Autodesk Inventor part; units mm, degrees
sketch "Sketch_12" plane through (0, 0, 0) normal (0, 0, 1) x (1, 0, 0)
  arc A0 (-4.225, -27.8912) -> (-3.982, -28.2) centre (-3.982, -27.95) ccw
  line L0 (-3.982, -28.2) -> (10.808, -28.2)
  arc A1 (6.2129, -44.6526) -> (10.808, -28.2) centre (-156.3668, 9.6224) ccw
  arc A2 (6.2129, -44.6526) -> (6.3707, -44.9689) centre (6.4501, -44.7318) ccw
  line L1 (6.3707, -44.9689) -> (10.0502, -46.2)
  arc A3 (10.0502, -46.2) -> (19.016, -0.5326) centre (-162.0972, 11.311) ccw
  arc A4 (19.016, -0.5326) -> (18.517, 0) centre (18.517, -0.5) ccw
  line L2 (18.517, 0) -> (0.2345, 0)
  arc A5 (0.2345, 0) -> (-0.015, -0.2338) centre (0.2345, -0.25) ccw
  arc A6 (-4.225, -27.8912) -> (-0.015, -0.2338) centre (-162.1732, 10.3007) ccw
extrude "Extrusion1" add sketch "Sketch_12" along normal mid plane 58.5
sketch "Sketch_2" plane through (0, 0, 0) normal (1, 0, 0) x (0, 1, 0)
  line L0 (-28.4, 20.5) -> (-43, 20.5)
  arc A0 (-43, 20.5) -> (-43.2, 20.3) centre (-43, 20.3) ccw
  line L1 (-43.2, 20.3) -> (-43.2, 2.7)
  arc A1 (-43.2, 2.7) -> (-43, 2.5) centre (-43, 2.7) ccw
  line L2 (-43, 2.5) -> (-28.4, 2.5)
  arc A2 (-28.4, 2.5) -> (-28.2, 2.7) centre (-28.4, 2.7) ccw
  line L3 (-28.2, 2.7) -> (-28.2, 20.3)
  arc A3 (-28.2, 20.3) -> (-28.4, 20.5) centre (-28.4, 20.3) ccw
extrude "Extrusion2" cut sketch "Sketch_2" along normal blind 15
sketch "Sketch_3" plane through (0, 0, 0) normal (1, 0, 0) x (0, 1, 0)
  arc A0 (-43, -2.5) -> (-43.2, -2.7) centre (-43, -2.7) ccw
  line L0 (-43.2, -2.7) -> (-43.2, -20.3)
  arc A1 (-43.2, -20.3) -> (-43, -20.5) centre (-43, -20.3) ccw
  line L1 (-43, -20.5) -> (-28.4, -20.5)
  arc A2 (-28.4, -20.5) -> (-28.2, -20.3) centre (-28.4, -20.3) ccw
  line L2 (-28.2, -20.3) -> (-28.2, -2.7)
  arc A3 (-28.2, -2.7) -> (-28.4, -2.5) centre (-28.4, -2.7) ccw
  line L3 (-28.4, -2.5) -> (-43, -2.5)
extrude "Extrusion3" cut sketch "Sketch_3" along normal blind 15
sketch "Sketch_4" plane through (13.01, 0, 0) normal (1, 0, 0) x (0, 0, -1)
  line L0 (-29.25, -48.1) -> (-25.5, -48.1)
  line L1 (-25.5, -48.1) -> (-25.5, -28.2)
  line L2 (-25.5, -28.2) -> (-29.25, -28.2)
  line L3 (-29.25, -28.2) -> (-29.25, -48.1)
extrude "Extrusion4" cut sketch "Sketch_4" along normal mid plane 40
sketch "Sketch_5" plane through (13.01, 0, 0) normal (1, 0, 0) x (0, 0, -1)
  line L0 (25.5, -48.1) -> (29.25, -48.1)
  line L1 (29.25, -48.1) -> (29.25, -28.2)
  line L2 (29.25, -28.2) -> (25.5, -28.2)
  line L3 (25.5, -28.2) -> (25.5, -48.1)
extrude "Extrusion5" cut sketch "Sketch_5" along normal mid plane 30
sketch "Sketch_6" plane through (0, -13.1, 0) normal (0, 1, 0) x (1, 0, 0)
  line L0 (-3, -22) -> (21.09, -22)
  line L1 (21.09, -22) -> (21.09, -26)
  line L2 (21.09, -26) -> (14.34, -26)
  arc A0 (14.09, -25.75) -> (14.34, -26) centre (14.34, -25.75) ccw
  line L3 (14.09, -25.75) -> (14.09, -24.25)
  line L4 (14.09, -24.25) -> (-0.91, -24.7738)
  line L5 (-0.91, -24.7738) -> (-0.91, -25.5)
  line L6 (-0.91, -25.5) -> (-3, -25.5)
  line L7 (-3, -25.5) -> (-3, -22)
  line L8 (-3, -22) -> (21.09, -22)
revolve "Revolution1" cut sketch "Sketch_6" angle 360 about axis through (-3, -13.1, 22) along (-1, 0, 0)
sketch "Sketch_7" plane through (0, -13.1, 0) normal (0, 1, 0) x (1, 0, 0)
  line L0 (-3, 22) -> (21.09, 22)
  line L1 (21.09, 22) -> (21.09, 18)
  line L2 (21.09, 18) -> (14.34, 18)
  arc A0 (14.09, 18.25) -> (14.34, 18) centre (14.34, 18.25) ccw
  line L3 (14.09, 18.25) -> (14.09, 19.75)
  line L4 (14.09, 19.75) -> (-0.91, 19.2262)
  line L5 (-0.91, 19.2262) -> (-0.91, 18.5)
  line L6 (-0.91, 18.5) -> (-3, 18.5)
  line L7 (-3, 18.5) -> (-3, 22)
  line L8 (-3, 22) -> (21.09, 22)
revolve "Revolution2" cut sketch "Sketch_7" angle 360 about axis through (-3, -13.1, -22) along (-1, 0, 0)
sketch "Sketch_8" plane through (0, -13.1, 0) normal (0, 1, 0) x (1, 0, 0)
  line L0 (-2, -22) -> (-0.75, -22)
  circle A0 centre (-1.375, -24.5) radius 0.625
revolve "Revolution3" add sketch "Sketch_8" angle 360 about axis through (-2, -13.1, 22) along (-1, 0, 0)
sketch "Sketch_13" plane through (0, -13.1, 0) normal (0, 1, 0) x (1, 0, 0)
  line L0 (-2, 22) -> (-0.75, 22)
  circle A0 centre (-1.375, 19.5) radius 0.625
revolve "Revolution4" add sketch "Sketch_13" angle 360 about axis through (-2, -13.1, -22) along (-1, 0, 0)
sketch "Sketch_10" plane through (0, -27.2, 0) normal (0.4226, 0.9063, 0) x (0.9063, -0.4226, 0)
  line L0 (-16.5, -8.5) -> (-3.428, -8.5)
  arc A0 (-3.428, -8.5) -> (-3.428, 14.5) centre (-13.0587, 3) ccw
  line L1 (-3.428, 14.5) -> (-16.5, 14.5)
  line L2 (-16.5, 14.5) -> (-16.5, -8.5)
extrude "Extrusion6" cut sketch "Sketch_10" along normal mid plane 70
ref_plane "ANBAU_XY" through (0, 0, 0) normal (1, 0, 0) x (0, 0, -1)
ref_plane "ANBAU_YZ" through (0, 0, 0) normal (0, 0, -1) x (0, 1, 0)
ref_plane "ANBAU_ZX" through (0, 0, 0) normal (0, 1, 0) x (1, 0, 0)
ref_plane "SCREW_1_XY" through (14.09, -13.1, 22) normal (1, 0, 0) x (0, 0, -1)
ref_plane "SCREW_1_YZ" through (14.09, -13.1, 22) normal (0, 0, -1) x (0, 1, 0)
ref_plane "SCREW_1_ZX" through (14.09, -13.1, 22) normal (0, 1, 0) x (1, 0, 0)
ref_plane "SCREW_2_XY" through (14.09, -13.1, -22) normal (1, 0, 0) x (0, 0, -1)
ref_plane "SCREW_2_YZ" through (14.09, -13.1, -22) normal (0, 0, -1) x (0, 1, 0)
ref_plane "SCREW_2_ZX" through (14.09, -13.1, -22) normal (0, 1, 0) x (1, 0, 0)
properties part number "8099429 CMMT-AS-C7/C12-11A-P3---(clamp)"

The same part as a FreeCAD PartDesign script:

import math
import FreeCAD as App
import Part
import Sketcher
Q = App.Units.Quantity


def add_polygon(sketch, points):
    """Adds a closed chain of lines whose ends are joined by coincident constraints."""
    first, n = sketch.GeometryCount, len(points)
    for a, b in zip(points, points[1:] + points[:1]):
        sketch.addGeometry(Part.LineSegment(App.Vector(*a, 0), App.Vector(*b, 0)), False)
    for i in range(n):
        sketch.addConstraint(Sketcher.Constraint("Coincident", first + i, 2, first + (i + 1) % n, 1))

doc = App.newDocument("Part")
body = doc.addObject("PartDesign::Body", "Body")

# Sketch on XY plane
sketch1 = doc.addObject("Sketcher::SketchObject", "Sketch")
body.addObject(sketch1)
sketch1.AttachmentSupport = (doc.XY_Plane, [""])
sketch1.MapMode = "FlatFace"
sketch1.addGeometry(Part.ArcOfCircle(Part.Circle(App.Vector(-162.17, 10.3, 0), App.Vector(0, 0, 1), 162.5), math.radians(-13.59), math.radians(-3.72)), False)
sketch1.addGeometry(Part.ArcOfCircle(Part.Circle(App.Vector(-3.98, -27.95, 0), App.Vector(0, 0, 1), 0.25), math.radians(166), math.radians(270)), False)
sketch1.addGeometry(Part.LineSegment(App.Vector(-3.98, -28.2, 0), App.Vector(10.81, -28.2, 0)), False)
sketch1.addGeometry(Part.ArcOfCircle(Part.Circle(App.Vector(-156.38, 9.63, 0), App.Vector(0, 0, 1), 171.42), math.radians(-18.46), math.radians(-12.75)), False)
sketch1.addGeometry(Part.ArcOfCircle(Part.Circle(App.Vector(6.45, -44.73, 0), App.Vector(0, 0, 1), 0.25), math.radians(162), math.radians(251)), False)
sketch1.addGeometry(Part.LineSegment(App.Vector(6.37, -44.97, 0), App.Vector(10.05, -46.2, 0)), False)
sketch1.addGeometry(Part.ArcOfCircle(Part.Circle(App.Vector(-162.1, 11.31, 0), App.Vector(0, 0, 1), 181.5), math.radians(-18.47), math.radians(-3.74)), False)
sketch1.addGeometry(Part.ArcOfCircle(Part.Circle(App.Vector(18.52, -0.5, 0), App.Vector(0, 0, 1), 0.5), math.radians(-4), math.radians(90)), False)
sketch1.addGeometry(Part.LineSegment(App.Vector(18.52, 0, 0), App.Vector(0.23, 0, 0)), False)
sketch1.addGeometry(Part.ArcOfCircle(Part.Circle(App.Vector(0.23, -0.25, 0), App.Vector(0, 0, 1), 0.25), math.radians(90), math.radians(176)), False)
sketch1.addConstraint(Sketcher.Constraint("Tangent", 0, 1, 1, 1))
sketch1.addConstraint(Sketcher.Constraint("Tangent", 1, 2, 2, 1))
sketch1.addConstraint(Sketcher.Constraint("Coincident", 2, 2, 3, 2))
sketch1.addConstraint(Sketcher.Constraint("Tangent", 3, 1, 4, 1))
sketch1.addConstraint(Sketcher.Constraint("Tangent", 4, 2, 5, 1))
sketch1.addConstraint(Sketcher.Constraint("Coincident", 5, 2, 6, 1))
sketch1.addConstraint(Sketcher.Constraint("Tangent", 6, 2, 7, 1))
sketch1.addConstraint(Sketcher.Constraint("Tangent", 7, 2, 8, 1))
sketch1.addConstraint(Sketcher.Constraint("Tangent", 8, 2, 9, 1))
sketch1.addConstraint(Sketcher.Constraint("Tangent", 9, 2, 0, 2))
sketch1.addConstraint(Sketcher.Constraint("Horizontal", 2))
sketch1.addConstraint(Sketcher.Constraint("Horizontal", 8))
sketch1.addConstraint(Sketcher.Constraint("Equal", 1, 4))
sketch1.addConstraint(Sketcher.Constraint("Equal", 4, 9))
sketch1.addConstraint(Sketcher.Constraint("PointOnObject", 7, 2, -1))
sketch1.addConstraint(Sketcher.Constraint("Radius", 0, 162.5))
sketch1.addConstraint(Sketcher.Constraint("Radius", 7, 0.5))
sketch1.addConstraint(Sketcher.Constraint("Radius", 1, 0.25))
sketch1.addConstraint(Sketcher.Constraint("Angle", 5, Q("-18.4994 deg")))
sketch1.addConstraint(Sketcher.Constraint("DistanceY", 5, 2, 2, 2, 18.0))
sketch1.addConstraint(Sketcher.Constraint("DistanceX", 2, 1, 2, 2, 14.79))
sketch1.addConstraint(Sketcher.Constraint("DistanceY", 1, 2, -1, 1, 28.2))
sketch1.addConstraint(Sketcher.Constraint("Radius", 3, 171.4154))
sketch1.addConstraint(Sketcher.Constraint("Radius", 6, 181.5033))
sketch1.addConstraint(Sketcher.Constraint("DistanceX", 4, 3, 5, 2, 3.6))
sketch1.addConstraint(Sketcher.Constraint("DistanceX", -1, 1, 4, 3, 6.45))
sketch1.addConstraint(Sketcher.Constraint("DistanceX", 8, 2, 8, 1, 18.2825))
sketch1.addConstraint(Sketcher.Constraint("DistanceX", 1, 3, -1, 1, 3.982))
sketch1.addConstraint(Sketcher.Constraint("DistanceX", -1, 1, 7, 3, 18.517))
pad1 = doc.addObject("PartDesign::Pad", "Pad")
body.addObject(pad1)
pad1.Profile = sketch1
pad1.Length = 58.5
pad1.Midplane = True

# Sketch on YZ plane
sketch2 = doc.addObject("Sketcher::SketchObject", "Sketch001")
body.addObject(sketch2)
sketch2.AttachmentSupport = (doc.YZ_Plane, [""])
sketch2.MapMode = "FlatFace"
sketch2.addGeometry(Part.ArcOfCircle(Part.Circle(App.Vector(-28.4, 20.3, 0), App.Vector(0, 0, 1), 0.2), math.radians(0), math.radians(90)), False)
sketch2.addGeometry(Part.LineSegment(App.Vector(-28.4, 20.5, 0), App.Vector(-43, 20.5, 0)), False)
sketch2.addGeometry(Part.ArcOfCircle(Part.Circle(App.Vector(-43, 20.3, 0), App.Vector(0, 0, 1), 0.2), math.radians(90), math.radians(180)), False)
sketch2.addGeometry(Part.LineSegment(App.Vector(-43.2, 20.3, 0), App.Vector(-43.2, 2.7, 0)), False)
sketch2.addGeometry(Part.ArcOfCircle(Part.Circle(App.Vector(-43, 2.7, 0), App.Vector(0, 0, 1), 0.2), math.radians(180), math.radians(270)), False)
sketch2.addGeometry(Part.LineSegment(App.Vector(-43, 2.5, 0), App.Vector(-28.4, 2.5, 0)), False)
sketch2.addGeometry(Part.ArcOfCircle(Part.Circle(App.Vector(-28.4, 2.7, 0), App.Vector(0, 0, 1), 0.2), math.radians(-90), math.radians(0)), False)
sketch2.addGeometry(Part.LineSegment(App.Vector(-28.2, 2.7, 0), App.Vector(-28.2, 20.3, 0)), False)
sketch2.addConstraint(Sketcher.Constraint("Tangent", 0, 2, 1, 1))
sketch2.addConstraint(Sketcher.Constraint("Tangent", 1, 2, 2, 1))
sketch2.addConstraint(Sketcher.Constraint("Tangent", 2, 2, 3, 1))
sketch2.addConstraint(Sketcher.Constraint("Tangent", 3, 2, 4, 1))
sketch2.addConstraint(Sketcher.Constraint("Tangent", 4, 2, 5, 1))
sketch2.addConstraint(Sketcher.Constraint("Tangent", 5, 2, 6, 1))
sketch2.addConstraint(Sketcher.Constraint("Tangent", 6, 2, 7, 1))
sketch2.addConstraint(Sketcher.Constraint("Tangent", 7, 2, 0, 1))
sketch2.addConstraint(Sketcher.Constraint("Horizontal", 1))
sketch2.addConstraint(Sketcher.Constraint("Vertical", 3))
sketch2.addConstraint(Sketcher.Constraint("Horizontal", 5))
sketch2.addConstraint(Sketcher.Constraint("Vertical", 7))
sketch2.addConstraint(Sketcher.Constraint("Equal", 0, 2))
sketch2.addConstraint(Sketcher.Constraint("Equal", 2, 4))
sketch2.addConstraint(Sketcher.Constraint("Equal", 4, 6))
sketch2.addConstraint(Sketcher.Constraint("Radius", 0, 0.2))
sketch2.addConstraint(Sketcher.Constraint("DistanceX", 1, 2, 1, 1, 14.6))
sketch2.addConstraint(Sketcher.Constraint("DistanceY", 3, 2, 3, 1, 17.6))
sketch2.addConstraint(Sketcher.Constraint("DistanceX", 2, 3, -1, 1, 43.0))
sketch2.addConstraint(Sketcher.Constraint("DistanceY", -1, 1, 0, 3, 20.3))
pocket1 = doc.addObject("PartDesign::Pocket", "Pocket")
body.addObject(pocket1)
pocket1.Profile = sketch2
pocket1.Length = 15
pocket1.Reversed = True

# Sketch on YZ plane
sketch3 = doc.addObject("Sketcher::SketchObject", "Sketch002")
body.addObject(sketch3)
sketch3.AttachmentSupport = (doc.YZ_Plane, [""])
sketch3.MapMode = "FlatFace"
sketch3.addGeometry(Part.LineSegment(App.Vector(-28.4, -2.5, 0), App.Vector(-43, -2.5, 0)), False)
sketch3.addGeometry(Part.ArcOfCircle(Part.Circle(App.Vector(-43, -2.7, 0), App.Vector(0, 0, 1), 0.2), math.radians(90), math.radians(180)), False)
sketch3.addGeometry(Part.LineSegment(App.Vector(-43.2, -2.7, 0), App.Vector(-43.2, -20.3, 0)), False)
sketch3.addGeometry(Part.ArcOfCircle(Part.Circle(App.Vector(-43, -20.3, 0), App.Vector(0, 0, 1), 0.2), math.radians(180), math.radians(270)), False)
sketch3.addGeometry(Part.LineSegment(App.Vector(-43, -20.5, 0), App.Vector(-28.4, -20.5, 0)), False)
sketch3.addGeometry(Part.ArcOfCircle(Part.Circle(App.Vector(-28.4, -20.3, 0), App.Vector(0, 0, 1), 0.2), math.radians(-90), math.radians(0)), False)
sketch3.addGeometry(Part.LineSegment(App.Vector(-28.2, -20.3, 0), App.Vector(-28.2, -2.7, 0)), False)
sketch3.addGeometry(Part.ArcOfCircle(Part.Circle(App.Vector(-28.4, -2.7, 0), App.Vector(0, 0, 1), 0.2), math.radians(0), math.radians(90)), False)
sketch3.addConstraint(Sketcher.Constraint("Tangent", 0, 2, 1, 1))
sketch3.addConstraint(Sketcher.Constraint("Tangent", 1, 2, 2, 1))
sketch3.addConstraint(Sketcher.Constraint("Tangent", 2, 2, 3, 1))
sketch3.addConstraint(Sketcher.Constraint("Tangent", 3, 2, 4, 1))
sketch3.addConstraint(Sketcher.Constraint("Tangent", 4, 2, 5, 1))
sketch3.addConstraint(Sketcher.Constraint("Tangent", 5, 2, 6, 1))
sketch3.addConstraint(Sketcher.Constraint("Tangent", 6, 2, 7, 1))
sketch3.addConstraint(Sketcher.Constraint("Tangent", 7, 2, 0, 1))
sketch3.addConstraint(Sketcher.Constraint("Horizontal", 0))
sketch3.addConstraint(Sketcher.Constraint("Vertical", 2))
sketch3.addConstraint(Sketcher.Constraint("Horizontal", 4))
sketch3.addConstraint(Sketcher.Constraint("Vertical", 6))
sketch3.addConstraint(Sketcher.Constraint("Equal", 1, 3))
sketch3.addConstraint(Sketcher.Constraint("Equal", 3, 5))
sketch3.addConstraint(Sketcher.Constraint("Equal", 5, 7))
sketch3.addConstraint(Sketcher.Constraint("Radius", 1, 0.2))
sketch3.addConstraint(Sketcher.Constraint("DistanceX", 0, 2, 0, 1, 14.6))
sketch3.addConstraint(Sketcher.Constraint("DistanceY", 2, 2, 2, 1, 17.6))
sketch3.addConstraint(Sketcher.Constraint("DistanceX", 1, 3, -1, 1, 43.0))
sketch3.addConstraint(Sketcher.Constraint("DistanceY", 1, 3, -1, 1, 2.7))
pocket2 = doc.addObject("PartDesign::Pocket", "Pocket001")
body.addObject(pocket2)
pocket2.Profile = sketch3
pocket2.Length = 15
pocket2.Reversed = True

# Sketch on YZ plane
sketch4 = doc.addObject("Sketcher::SketchObject", "Sketch003")
body.addObject(sketch4)
sketch4.AttachmentSupport = (doc.YZ_Plane, [""])
sketch4.MapMode = "FlatFace"
sketch4.AttachmentOffset = App.Placement(App.Vector(0, 0, 13.01), App.Rotation())
add_polygon(sketch4, [(-28.2, 29.2), (-48.1, 29.2), (-48.1, 25.5), (-28.2, 25.5)])  # lines 0-3
sketch4.addConstraint(Sketcher.Constraint("Horizontal", 0))
sketch4.addConstraint(Sketcher.Constraint("Vertical", 1))
sketch4.addConstraint(Sketcher.Constraint("Horizontal", 2))
sketch4.addConstraint(Sketcher.Constraint("Vertical", 3))
sketch4.addConstraint(Sketcher.Constraint("DistanceX", 0, 2, 0, 1, 19.9))
sketch4.addConstraint(Sketcher.Constraint("DistanceY", 1, 2, 1, 1, 3.75))
sketch4.addConstraint(Sketcher.Constraint("DistanceX", 0, 2, -1, 1, 48.1))
sketch4.addConstraint(Sketcher.Constraint("DistanceY", -1, 1, 1, 2, 25.5))
pocket3 = doc.addObject("PartDesign::Pocket", "Pocket002")
body.addObject(pocket3)
pocket3.Profile = sketch4
pocket3.Length = 40
pocket3.Midplane = True

# Sketch on YZ plane
sketch5 = doc.addObject("Sketcher::SketchObject", "Sketch004")
body.addObject(sketch5)
sketch5.AttachmentSupport = (doc.YZ_Plane, [""])
sketch5.MapMode = "FlatFace"
sketch5.AttachmentOffset = App.Placement(App.Vector(0, 0, 13.01), App.Rotation())
add_polygon(sketch5, [(-28.2, -25.5), (-48.1, -25.5), (-48.1, -29.2), (-28.2, -29.2)])  # lines 0-3
sketch5.addConstraint(Sketcher.Constraint("Horizontal", 0))
sketch5.addConstraint(Sketcher.Constraint("Vertical", 1))
sketch5.addConstraint(Sketcher.Constraint("Horizontal", 2))
sketch5.addConstraint(Sketcher.Constraint("Vertical", 3))
sketch5.addConstraint(Sketcher.Constraint("DistanceX", 0, 2, 0, 1, 19.9))
sketch5.addConstraint(Sketcher.Constraint("DistanceY", 1, 2, 1, 1, 3.75))
sketch5.addConstraint(Sketcher.Constraint("DistanceX", 0, 2, -1, 1, 48.1))
sketch5.addConstraint(Sketcher.Constraint("DistanceY", 0, 2, -1, 1, 25.5))
pocket4 = doc.addObject("PartDesign::Pocket", "Pocket003")
body.addObject(pocket4)
pocket4.Profile = sketch5
pocket4.Length = 30
pocket4.Midplane = True

# Sketch on XZ plane
sketch6 = doc.addObject("Sketcher::SketchObject", "Sketch005")
body.addObject(sketch6)
sketch6.AttachmentSupport = (doc.XZ_Plane, [""])
sketch6.MapMode = "FlatFace"
sketch6.AttachmentOffset = App.Placement(App.Vector(0, 0, 13.1), App.Rotation())
sketch6.addGeometry(Part.LineSegment(App.Vector(21.09, 22, 0), App.Vector(-3, 22, 0)), False)
sketch6.addGeometry(Part.LineSegment(App.Vector(-3, 22, 0), App.Vector(-3, 25.5, 0)), False)
sketch6.addGeometry(Part.LineSegment(App.Vector(-3, 25.5, 0), App.Vector(-0.91, 25.5, 0)), False)
sketch6.addGeometry(Part.LineSegment(App.Vector(-0.91, 25.5, 0), App.Vector(-0.91, 24.77, 0)), False)
sketch6.addGeometry(Part.LineSegment(App.Vector(-0.91, 24.77, 0), App.Vector(14.09, 24.25, 0)), False)
sketch6.addGeometry(Part.LineSegment(App.Vector(14.09, 24.25, 0), App.Vector(14.09, 25.75, 0)), False)
sketch6.addGeometry(Part.ArcOfCircle(Part.Circle(App.Vector(14.34, 25.75, 0), App.Vector(0, 0, 1), 0.25), math.radians(90), math.radians(180)), False)
sketch6.addGeometry(Part.LineSegment(App.Vector(14.34, 26, 0), App.Vector(21.09, 26, 0)), False)
sketch6.addGeometry(Part.LineSegment(App.Vector(21.09, 26, 0), App.Vector(21.09, 22, 0)), False)
sketch6.addGeometry(Part.LineSegment(App.Vector(21.09, 22, 0), App.Vector(-3, 22, 0)), True)  # axis
sketch6.addConstraint(Sketcher.Constraint("Coincident", 0, 2, 1, 1))
sketch6.addConstraint(Sketcher.Constraint("Coincident", 1, 2, 2, 1))
sketch6.addConstraint(Sketcher.Constraint("Coincident", 2, 2, 3, 1))
sketch6.addConstraint(Sketcher.Constraint("Coincident", 3, 2, 4, 1))
sketch6.addConstraint(Sketcher.Constraint("Coincident", 4, 2, 5, 1))
sketch6.addConstraint(Sketcher.Constraint("Tangent", 5, 2, 6, 2))
sketch6.addConstraint(Sketcher.Constraint("Tangent", 6, 1, 7, 1))
sketch6.addConstraint(Sketcher.Constraint("Coincident", 7, 2, 8, 1))
sketch6.addConstraint(Sketcher.Constraint("Coincident", 8, 2, 0, 1))
sketch6.addConstraint(Sketcher.Constraint("Horizontal", 0))
sketch6.addConstraint(Sketcher.Constraint("Vertical", 1))
sketch6.addConstraint(Sketcher.Constraint("Horizontal", 2))
sketch6.addConstraint(Sketcher.Constraint("Vertical", 3))
sketch6.addConstraint(Sketcher.Constraint("Vertical", 5))
sketch6.addConstraint(Sketcher.Constraint("Horizontal", 7))
sketch6.addConstraint(Sketcher.Constraint("Vertical", 8))
sketch6.addConstraint(Sketcher.Constraint("Horizontal", 9))
sketch6.addConstraint(Sketcher.Constraint("Coincident", 9, 1, 8, 2))
sketch6.addConstraint(Sketcher.Constraint("Vertical", 1, 2, 9, 2))
sketch6.addConstraint(Sketcher.Constraint("DistanceY", 8, 2, 8, 1, 4.0))
sketch6.addConstraint(Sketcher.Constraint("Angle", 4, Q("-2 deg")))
sketch6.addConstraint(Sketcher.Constraint("Radius", 6, 0.25))
sketch6.addConstraint(Sketcher.Constraint("DistanceY", 1, 1, 1, 2, 3.5))
sketch6.addConstraint(Sketcher.Constraint("DistanceY", 5, 1, 5, 2, 1.5))
sketch6.addConstraint(Sketcher.Constraint("DistanceX", 0, 2, -1, 1, 3.0))
sketch6.addConstraint(Sketcher.Constraint("DistanceY", -1, 1, 0, 2, 22.0))
sketch6.addConstraint(Sketcher.Constraint("DistanceX", 3, 2, 4, 2, 15.0))
sketch6.addConstraint(Sketcher.Constraint("DistanceX", 5, 2, 7, 2, 7.0))
sketch6.addConstraint(Sketcher.Constraint("DistanceX", 0, 2, 0, 1, 24.09))
groove = doc.addObject("PartDesign::Groove", "Groove")
body.addObject(groove)
groove.Profile = sketch6
groove.ReferenceAxis = (sketch6, ["Axis0"])
groove.Angle = 360

# Sketch on XZ plane
sketch7 = doc.addObject("Sketcher::SketchObject", "Sketch006")
body.addObject(sketch7)
sketch7.AttachmentSupport = (doc.XZ_Plane, [""])
sketch7.MapMode = "FlatFace"
sketch7.AttachmentOffset = App.Placement(App.Vector(0, 0, 13.1), App.Rotation())
sketch7.addGeometry(Part.LineSegment(App.Vector(21.09, -22, 0), App.Vector(-3, -22, 0)), False)
sketch7.addGeometry(Part.LineSegment(App.Vector(-3, -22, 0), App.Vector(-3, -18.5, 0)), False)
sketch7.addGeometry(Part.LineSegment(App.Vector(-3, -18.5, 0), App.Vector(-0.91, -18.5, 0)), False)
sketch7.addGeometry(Part.LineSegment(App.Vector(-0.91, -18.5, 0), App.Vector(-0.91, -19.23, 0)), False)
sketch7.addGeometry(Part.LineSegment(App.Vector(-0.91, -19.23, 0), App.Vector(14.09, -19.75, 0)), False)
sketch7.addGeometry(Part.LineSegment(App.Vector(14.09, -19.75, 0), App.Vector(14.09, -18.25, 0)), False)
sketch7.addGeometry(Part.ArcOfCircle(Part.Circle(App.Vector(14.34, -18.25, 0), App.Vector(0, 0, 1), 0.25), math.radians(90), math.radians(180)), False)
sketch7.addGeometry(Part.LineSegment(App.Vector(14.34, -18, 0), App.Vector(21.09, -18, 0)), False)
sketch7.addGeometry(Part.LineSegment(App.Vector(21.09, -18, 0), App.Vector(21.09, -22, 0)), False)
sketch7.addGeometry(Part.LineSegment(App.Vector(21.09, -22, 0), App.Vector(-3, -22, 0)), True)  # axis
sketch7.addConstraint(Sketcher.Constraint("Coincident", 0, 2, 1, 1))
sketch7.addConstraint(Sketcher.Constraint("Coincident", 1, 2, 2, 1))
sketch7.addConstraint(Sketcher.Constraint("Coincident", 2, 2, 3, 1))
sketch7.addConstraint(Sketcher.Constraint("Coincident", 3, 2, 4, 1))
sketch7.addConstraint(Sketcher.Constraint("Coincident", 4, 2, 5, 1))
sketch7.addConstraint(Sketcher.Constraint("Tangent", 5, 2, 6, 2))
sketch7.addConstraint(Sketcher.Constraint("Tangent", 6, 1, 7, 1))
sketch7.addConstraint(Sketcher.Constraint("Coincident", 7, 2, 8, 1))
sketch7.addConstraint(Sketcher.Constraint("Coincident", 8, 2, 0, 1))
sketch7.addConstraint(Sketcher.Constraint("Horizontal", 0))
sketch7.addConstraint(Sketcher.Constraint("Vertical", 1))
sketch7.addConstraint(Sketcher.Constraint("Horizontal", 2))
sketch7.addConstraint(Sketcher.Constraint("Vertical", 3))
sketch7.addConstraint(Sketcher.Constraint("Vertical", 5))
sketch7.addConstraint(Sketcher.Constraint("Horizontal", 7))
sketch7.addConstraint(Sketcher.Constraint("Vertical", 8))
sketch7.addConstraint(Sketcher.Constraint("Horizontal", 9))
sketch7.addConstraint(Sketcher.Constraint("Coincident", 9, 1, 8, 2))
sketch7.addConstraint(Sketcher.Constraint("Vertical", 1, 2, 9, 2))
sketch7.addConstraint(Sketcher.Constraint("DistanceY", 8, 2, 8, 1, 4.0))
sketch7.addConstraint(Sketcher.Constraint("Angle", 4, Q("-2 deg")))
sketch7.addConstraint(Sketcher.Constraint("Radius", 6, 0.25))
sketch7.addConstraint(Sketcher.Constraint("DistanceY", 1, 1, 1, 2, 3.5))
sketch7.addConstraint(Sketcher.Constraint("DistanceY", 5, 1, 5, 2, 1.5))
sketch7.addConstraint(Sketcher.Constraint("DistanceX", 0, 2, -1, 1, 3.0))
sketch7.addConstraint(Sketcher.Constraint("DistanceY", 0, 2, -1, 1, 22.0))
sketch7.addConstraint(Sketcher.Constraint("DistanceX", 3, 2, 4, 2, 15.0))
sketch7.addConstraint(Sketcher.Constraint("DistanceX", 5, 2, 7, 2, 7.0))
sketch7.addConstraint(Sketcher.Constraint("DistanceX", 0, 2, 0, 1, 24.09))
groove2 = doc.addObject("PartDesign::Groove", "Groove001")
body.addObject(groove2)
groove2.Profile = sketch7
groove2.ReferenceAxis = (sketch7, ["Axis0"])
groove2.Angle = 360

# Sketch on XZ plane
sketch8 = doc.addObject("Sketcher::SketchObject", "Sketch007")
body.addObject(sketch8)
sketch8.AttachmentSupport = (doc.XZ_Plane, [""])
sketch8.MapMode = "FlatFace"
sketch8.AttachmentOffset = App.Placement(App.Vector(0, 0, 13.1), App.Rotation())
sketch8.addGeometry(Part.Circle(App.Vector(-1.4, 24.5, 0), App.Vector(0, 0, 1), 0.6), False)
sketch8.addGeometry(Part.LineSegment(App.Vector(-1.4, 22, 0), App.Vector(-11.4, 22, 0)), True)  # axis
sketch8.addConstraint(Sketcher.Constraint("Horizontal", 1))
sketch8.addConstraint(Sketcher.Constraint("Vertical", 0, 3, 1, 1))
sketch8.addConstraint(Sketcher.Constraint("Diameter", 0, 1.25))
sketch8.addConstraint(Sketcher.Constraint("DistanceX", 1, 2, 1, 1, 10.0))
sketch8.addConstraint(Sketcher.Constraint("DistanceY", -1, 1, 1, 1, 22.0))
sketch8.addConstraint(Sketcher.Constraint("DistanceY", -1, 1, 0, 3, 24.5))
sketch8.addConstraint(Sketcher.Constraint("DistanceX", 0, 3, -1, 1, 1.375))
revolution = doc.addObject("PartDesign::Revolution", "Revolution")
body.addObject(revolution)
revolution.Profile = sketch8
revolution.ReferenceAxis = (sketch8, ["Axis0"])
revolution.Angle = 360

# Sketch on XZ plane
sketch9 = doc.addObject("Sketcher::SketchObject", "Sketch008")
body.addObject(sketch9)
sketch9.AttachmentSupport = (doc.XZ_Plane, [""])
sketch9.MapMode = "FlatFace"
sketch9.AttachmentOffset = App.Placement(App.Vector(0, 0, 13.1), App.Rotation())
sketch9.addGeometry(Part.Circle(App.Vector(-1.4, -19.5, 0), App.Vector(0, 0, 1), 0.6), False)
sketch9.addGeometry(Part.LineSegment(App.Vector(-1.4, -22, 0), App.Vector(-11.4, -22, 0)), True)  # axis
sketch9.addConstraint(Sketcher.Constraint("Horizontal", 1))
sketch9.addConstraint(Sketcher.Constraint("Vertical", 0, 3, 1, 1))
sketch9.addConstraint(Sketcher.Constraint("Diameter", 0, 1.25))
sketch9.addConstraint(Sketcher.Constraint("DistanceX", 1, 2, 1, 1, 10.0))
sketch9.addConstraint(Sketcher.Constraint("DistanceY", 1, 1, -1, 1, 22.0))
sketch9.addConstraint(Sketcher.Constraint("DistanceY", 0, 3, -1, 1, 19.5))
sketch9.addConstraint(Sketcher.Constraint("DistanceX", 0, 3, -1, 1, 1.375))
revolution2 = doc.addObject("PartDesign::Revolution", "Revolution001")
body.addObject(revolution2)
revolution2.Profile = sketch9
revolution2.ReferenceAxis = (sketch9, ["Axis0"])
revolution2.Angle = 360

# Sketch on an angled plane
sketch10 = doc.addObject("Sketcher::SketchObject", "Sketch009")
body.addObject(sketch10)
sketch10.Placement = App.Placement(App.Vector(0, -27.2, 0), App.Rotation(App.Vector(0.906307787, -0.422618262, 0), App.Vector(0, 0, -1), App.Vector(0.422618262, 0.906307787, 0), "ZXY"))
sketch10.addGeometry(Part.LineSegment(App.Vector(-17, 15, 0), App.Vector(-17, -9, 0)), False)
sketch10.addGeometry(Part.LineSegment(App.Vector(-17, -9, 0), App.Vector(-3, -9, 0)), False)
sketch10.addGeometry(Part.ArcOfCircle(Part.Circle(App.Vector(-13, 3, 0), App.Vector(0, 0, 1), 15), math.radians(-50), math.radians(50)), False)
sketch10.addGeometry(Part.LineSegment(App.Vector(-3, 15, 0), App.Vector(-17, 15, 0)), False)
sketch10.addConstraint(Sketcher.Constraint("Coincident", 0, 2, 1, 1))
sketch10.addConstraint(Sketcher.Constraint("Coincident", 1, 2, 2, 1))
sketch10.addConstraint(Sketcher.Constraint("Coincident", 2, 2, 3, 1))
sketch10.addConstraint(Sketcher.Constraint("Coincident", 3, 2, 0, 1))
sketch10.addConstraint(Sketcher.Constraint("Vertical", 0))
sketch10.addConstraint(Sketcher.Constraint("Horizontal", 1))
sketch10.addConstraint(Sketcher.Constraint("Horizontal", 3))
sketch10.addConstraint(Sketcher.Constraint("Vertical", 1, 2, 2, 2))
sketch10.addConstraint(Sketcher.Constraint("Radius", 2, 15.0))
sketch10.addConstraint(Sketcher.Constraint("DistanceY", 0, 2, 0, 1, 23.0))
sketch10.addConstraint(Sketcher.Constraint("DistanceY", -1, 1, 2, 3, 3.0))
sketch10.addConstraint(Sketcher.Constraint("DistanceX", 0, 2, -1, 1, 16.5))
sketch10.addConstraint(Sketcher.Constraint("DistanceX", 1, 1, 1, 2, 13.072))
pocket5 = doc.addObject("PartDesign::Pocket", "Pocket004")
body.addObject(pocket5)
pocket5.Profile = sketch10
pocket5.Length = 70
pocket5.Midplane = True

doc.recompute()
